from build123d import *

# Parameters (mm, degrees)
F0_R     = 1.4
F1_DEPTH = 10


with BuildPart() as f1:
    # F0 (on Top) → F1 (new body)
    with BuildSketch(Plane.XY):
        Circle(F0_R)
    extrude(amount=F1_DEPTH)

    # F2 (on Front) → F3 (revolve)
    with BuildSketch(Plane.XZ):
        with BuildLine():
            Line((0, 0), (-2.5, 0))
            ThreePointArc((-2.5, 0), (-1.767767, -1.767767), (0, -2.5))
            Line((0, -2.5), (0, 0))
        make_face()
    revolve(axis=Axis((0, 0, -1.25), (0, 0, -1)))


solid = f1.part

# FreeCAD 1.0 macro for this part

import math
import FreeCAD as App
import Part
import Sketcher
from FreeCAD import Vector

doc = App.newDocument("Part")
params = doc.addObject("Spreadsheet::Sheet", "Params")
for row, (alias, value) in enumerate([
    ("sketch1_diameter", "2.8 mm"),
    ("pad1_length", "10 mm"),
    ("sketch2_radius", "2.5 mm"),
    ("revolution_angle", "360 deg"),
], start=1):
    params.set(f"A{row}", alias)
    params.set(f"B{row}", "=" + value)
    params.setAlias(f"B{row}", alias)

body = doc.addObject("PartDesign::Body", "Body")

sketch1 = body.newObject("Sketcher::SketchObject", "Sketch")
sketch1.AttachmentSupport = (doc.getObject("XY_Plane"), [""])
sketch1.MapMode = "FlatFace"
sketch1.addGeometry(Part.Circle(Vector(0, 0, 0), Vector(0, 0, 1), 1.4), False)
sketch1.addConstraint(Sketcher.Constraint("Coincident", 0, 3, -1, 1))
sketch1.addConstraint(Sketcher.Constraint("Diameter", 0, 2.8))
sketch1.setExpression("Constraints[1]", "Params.sketch1_diameter")
pad1 = body.newObject("PartDesign::Pad", "Pad")
pad1.Profile = sketch1
pad1.setExpression("Length", "Params.pad1_length")

sketch2 = body.newObject("Sketcher::SketchObject", "Sketch001")
sketch2.AttachmentSupport = (doc.getObject("XZ_Plane"), [""])
sketch2.MapMode = "FlatFace"
sketch2.addGeometry(Part.LineSegment(Vector(0, 0, 0), Vector(-2.5, 0, 0)), False)
sketch2.addGeometry(Part.ArcOfCircle(Part.Circle(Vector(0, 0, 0), Vector(0, 0, 1), 2.5), math.radians(180), math.radians(270)), False)
sketch2.addGeometry(Part.LineSegment(Vector(0, -2.5, 0), Vector(0, 0, 0)), False)
sketch2.addConstraint(Sketcher.Constraint("Coincident", 0, 2, 1, 1))
sketch2.addConstraint(Sketcher.Constraint("Coincident", 1, 2, 2, 1))
sketch2.addConstraint(Sketcher.Constraint("Coincident", 2, 2, 0, 1))
sketch2.addConstraint(Sketcher.Constraint("Horizontal", 0))
sketch2.addConstraint(Sketcher.Constraint("Vertical", 2))
sketch2.addConstraint(Sketcher.Constraint("Coincident", 1, 3, -1, 1))
sketch2.addConstraint(Sketcher.Constraint("Coincident", 2, 2, -1, 1))
sketch2.addConstraint(Sketcher.Constraint("Radius", 1, 2.5))
sketch2.setExpression("Constraints[7]", "Params.sketch2_radius")
revolution = body.newObject("PartDesign::Revolution", "Revolution")
revolution.Profile = sketch2
revolution.ReferenceAxis = (sketch2, ["V_Axis"])
revolution.setExpression("Angle", "Params.revolution_angle")

doc.recompute()
